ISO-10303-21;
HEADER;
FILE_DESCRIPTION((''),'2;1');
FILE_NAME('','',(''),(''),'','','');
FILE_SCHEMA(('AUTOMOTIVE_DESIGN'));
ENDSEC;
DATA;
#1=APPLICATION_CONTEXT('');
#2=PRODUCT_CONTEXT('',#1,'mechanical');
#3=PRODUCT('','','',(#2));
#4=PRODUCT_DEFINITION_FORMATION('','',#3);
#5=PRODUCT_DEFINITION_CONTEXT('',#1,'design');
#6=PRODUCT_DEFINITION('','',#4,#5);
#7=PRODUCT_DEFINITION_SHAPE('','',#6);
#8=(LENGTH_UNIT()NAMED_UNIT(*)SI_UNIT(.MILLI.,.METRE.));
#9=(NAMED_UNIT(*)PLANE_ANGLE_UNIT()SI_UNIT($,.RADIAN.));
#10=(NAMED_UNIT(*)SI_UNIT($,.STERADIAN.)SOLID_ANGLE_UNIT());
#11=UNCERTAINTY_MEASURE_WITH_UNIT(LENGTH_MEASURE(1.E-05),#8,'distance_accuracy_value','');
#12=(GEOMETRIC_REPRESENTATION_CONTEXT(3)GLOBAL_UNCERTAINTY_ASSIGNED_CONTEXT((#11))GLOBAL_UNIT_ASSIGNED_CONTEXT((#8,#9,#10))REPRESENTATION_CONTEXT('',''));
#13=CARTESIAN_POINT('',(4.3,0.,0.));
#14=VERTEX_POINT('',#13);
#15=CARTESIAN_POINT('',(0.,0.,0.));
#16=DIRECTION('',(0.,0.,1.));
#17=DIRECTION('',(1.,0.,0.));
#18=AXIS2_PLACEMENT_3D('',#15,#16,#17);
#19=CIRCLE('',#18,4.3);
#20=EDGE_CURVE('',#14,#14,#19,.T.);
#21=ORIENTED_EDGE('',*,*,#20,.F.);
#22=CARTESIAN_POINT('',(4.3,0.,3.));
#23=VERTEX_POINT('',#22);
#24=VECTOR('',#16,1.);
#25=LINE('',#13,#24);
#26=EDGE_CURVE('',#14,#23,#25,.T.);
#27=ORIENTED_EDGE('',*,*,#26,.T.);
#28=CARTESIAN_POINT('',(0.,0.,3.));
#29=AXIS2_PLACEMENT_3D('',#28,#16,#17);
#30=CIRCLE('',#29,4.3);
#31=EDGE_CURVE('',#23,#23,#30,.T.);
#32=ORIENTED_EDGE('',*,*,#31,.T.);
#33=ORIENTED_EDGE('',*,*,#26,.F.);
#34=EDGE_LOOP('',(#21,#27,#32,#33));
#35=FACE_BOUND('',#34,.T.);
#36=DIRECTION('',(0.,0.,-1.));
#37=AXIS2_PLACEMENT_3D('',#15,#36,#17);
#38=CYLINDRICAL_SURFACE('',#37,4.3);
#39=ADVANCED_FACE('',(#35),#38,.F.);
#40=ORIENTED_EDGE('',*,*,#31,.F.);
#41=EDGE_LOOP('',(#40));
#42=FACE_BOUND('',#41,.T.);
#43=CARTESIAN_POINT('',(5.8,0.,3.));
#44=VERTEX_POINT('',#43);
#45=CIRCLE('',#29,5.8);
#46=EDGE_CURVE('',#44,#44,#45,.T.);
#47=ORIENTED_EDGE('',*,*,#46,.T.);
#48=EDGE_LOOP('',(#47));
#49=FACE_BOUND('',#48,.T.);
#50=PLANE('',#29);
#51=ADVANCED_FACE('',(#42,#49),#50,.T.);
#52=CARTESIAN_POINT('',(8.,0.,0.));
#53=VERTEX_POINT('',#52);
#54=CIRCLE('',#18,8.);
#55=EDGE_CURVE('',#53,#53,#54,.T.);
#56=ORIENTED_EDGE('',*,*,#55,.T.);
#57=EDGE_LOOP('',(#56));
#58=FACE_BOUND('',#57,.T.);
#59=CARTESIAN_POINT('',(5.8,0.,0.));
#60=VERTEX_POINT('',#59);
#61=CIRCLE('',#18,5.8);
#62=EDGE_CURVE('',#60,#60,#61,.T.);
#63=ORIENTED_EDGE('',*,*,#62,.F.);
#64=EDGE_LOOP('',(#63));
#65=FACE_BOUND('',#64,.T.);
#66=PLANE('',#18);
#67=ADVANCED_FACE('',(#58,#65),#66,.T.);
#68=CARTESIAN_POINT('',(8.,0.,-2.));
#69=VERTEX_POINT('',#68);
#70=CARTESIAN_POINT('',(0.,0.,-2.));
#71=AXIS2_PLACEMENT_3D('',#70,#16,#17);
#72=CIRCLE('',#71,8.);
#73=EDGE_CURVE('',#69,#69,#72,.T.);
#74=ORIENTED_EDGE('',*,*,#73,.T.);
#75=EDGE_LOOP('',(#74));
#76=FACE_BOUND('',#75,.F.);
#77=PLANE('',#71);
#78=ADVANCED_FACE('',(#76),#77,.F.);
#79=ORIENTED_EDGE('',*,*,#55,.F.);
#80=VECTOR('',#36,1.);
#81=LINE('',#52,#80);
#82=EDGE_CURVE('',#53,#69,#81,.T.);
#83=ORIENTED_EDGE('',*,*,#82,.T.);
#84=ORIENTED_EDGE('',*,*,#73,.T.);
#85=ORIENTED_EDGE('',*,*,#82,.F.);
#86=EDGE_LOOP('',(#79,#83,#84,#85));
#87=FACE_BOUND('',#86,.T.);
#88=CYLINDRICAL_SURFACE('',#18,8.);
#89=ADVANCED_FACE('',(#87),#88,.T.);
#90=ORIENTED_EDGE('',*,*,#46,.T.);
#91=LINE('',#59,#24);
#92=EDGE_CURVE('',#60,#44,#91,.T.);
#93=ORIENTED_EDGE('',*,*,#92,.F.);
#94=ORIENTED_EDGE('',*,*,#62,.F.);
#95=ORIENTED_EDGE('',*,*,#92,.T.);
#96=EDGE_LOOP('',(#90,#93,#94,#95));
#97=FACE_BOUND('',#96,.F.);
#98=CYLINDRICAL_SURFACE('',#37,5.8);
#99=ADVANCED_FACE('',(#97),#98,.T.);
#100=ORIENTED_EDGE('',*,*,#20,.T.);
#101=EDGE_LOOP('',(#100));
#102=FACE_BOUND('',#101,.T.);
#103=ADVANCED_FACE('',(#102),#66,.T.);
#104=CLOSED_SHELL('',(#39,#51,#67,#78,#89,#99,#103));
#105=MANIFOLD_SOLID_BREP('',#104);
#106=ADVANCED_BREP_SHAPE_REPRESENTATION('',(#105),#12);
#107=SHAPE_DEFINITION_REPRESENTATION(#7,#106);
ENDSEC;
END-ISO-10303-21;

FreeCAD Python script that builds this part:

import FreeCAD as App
import Part
import Sketcher
from FreeCAD import Vector
Q = App.Units.Quantity

doc = App.newDocument("Part")
body = doc.addObject("PartDesign::Body", "Body")

# Sketch on XY plane
sketch1 = body.newObject("Sketcher::SketchObject", "Sketch")
sketch1.AttachmentSupport = (doc.getObject("XY_Plane"), [""])
sketch1.MapMode = "FlatFace"
sketch1.addGeometry(Part.Circle(Vector(0, 0, 0), Vector(0, 0, 1), 5.8), False)
sketch1.addGeometry(Part.Circle(Vector(0, 0, 0), Vector(0, 0, 1), 4.3), False)
sketch1.addConstraint(Sketcher.Constraint("Coincident", 0, 3, -1, 1))
sketch1.addConstraint(Sketcher.Constraint("Coincident", 1, 3, -1, 1))
sketch1.addConstraint(Sketcher.Constraint("Diameter", 0, Q("11.6 mm")))
sketch1.addConstraint(Sketcher.Constraint("Diameter", 1, Q("8.6 mm")))
pad1 = body.newObject("PartDesign::Pad", "Pad")
pad1.Profile = sketch1
pad1.Length = 3

# Sketch on XY plane
sketch2 = body.newObject("Sketcher::SketchObject", "Sketch001")
sketch2.AttachmentSupport = (doc.getObject("XY_Plane"), [""])
sketch2.MapMode = "FlatFace"
sketch2.addGeometry(Part.Circle(Vector(0, 0, 0), Vector(0, 0, 1), 8), False)
sketch2.addConstraint(Sketcher.Constraint("Coincident", 0, 3, -1, 1))
sketch2.addConstraint(Sketcher.Constraint("Diameter", 0, Q("16 mm")))
pad2 = body.newObject("PartDesign::Pad", "Pad001")
pad2.Profile = sketch2
pad2.Length = 2
pad2.Reversed = True

doc.recompute()
